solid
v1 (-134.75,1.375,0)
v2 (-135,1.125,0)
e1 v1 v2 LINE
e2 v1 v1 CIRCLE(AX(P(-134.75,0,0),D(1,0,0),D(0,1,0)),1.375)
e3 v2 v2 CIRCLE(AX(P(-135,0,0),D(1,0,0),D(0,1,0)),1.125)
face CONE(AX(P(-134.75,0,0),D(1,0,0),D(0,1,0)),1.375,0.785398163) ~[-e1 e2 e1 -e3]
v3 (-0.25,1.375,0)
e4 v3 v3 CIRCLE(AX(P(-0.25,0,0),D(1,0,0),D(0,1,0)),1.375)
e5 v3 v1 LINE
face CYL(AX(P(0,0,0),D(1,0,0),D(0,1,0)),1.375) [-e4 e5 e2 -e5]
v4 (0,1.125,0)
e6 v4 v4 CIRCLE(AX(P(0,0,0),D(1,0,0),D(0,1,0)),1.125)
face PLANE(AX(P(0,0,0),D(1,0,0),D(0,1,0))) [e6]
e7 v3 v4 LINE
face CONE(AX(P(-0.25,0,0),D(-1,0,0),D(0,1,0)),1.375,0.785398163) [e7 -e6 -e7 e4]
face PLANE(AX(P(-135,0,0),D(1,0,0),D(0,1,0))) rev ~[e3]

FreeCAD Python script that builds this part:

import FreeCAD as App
import Part
import Sketcher
from FreeCAD import Vector


def edges_at(feature, points):
    """Names of the edges that pass closest to the given points."""
    edges = feature.Shape.Edges
    near = lambda p: min(range(len(edges)), key=lambda i: edges[i].distToShape(Part.Vertex(*p))[0])
    return sorted({f"Edge{near(p) + 1}" for p in points})

doc = App.newDocument("Part")
params = doc.addObject("Spreadsheet::Sheet", "Params")
for row, (alias, value) in enumerate([
    ("sketch1_diameter", "2.75 mm"),
    ("pad1_length", "135 mm"),
    ("chamfer_size", "0.25 mm"),
], start=1):
    params.set(f"A{row}", alias)
    params.set(f"B{row}", "=" + value)
    params.setAlias(f"B{row}", alias)

body = doc.addObject("PartDesign::Body", "Body")

sketch1 = body.newObject("Sketcher::SketchObject", "Sketch")
sketch1.AttachmentSupport = (doc.getObject("YZ_Plane"), [""])
sketch1.MapMode = "FlatFace"
sketch1.addGeometry(Part.Circle(Vector(0, 0, 0), Vector(0, 0, 1), 1.375), False)
sketch1.addConstraint([
    Sketcher.Constraint("Coincident", 0, 3, -1, 1),
    Sketcher.Constraint("Diameter", 0, 2.75),
])
sketch1.setExpression("Constraints[1]", "Params.sketch1_diameter")
pad1 = body.newObject("PartDesign::Pad", "Pad")
pad1.Profile = sketch1
pad1.setExpression("Length", "Params.pad1_length")
pad1.Reversed = True
doc.recompute()

chamfer = body.newObject("PartDesign::Chamfer", "Chamfer")
chamfer.Base = (pad1, edges_at(pad1, [(-135, -1.375, 0), (0, -1.375, 0)]))
chamfer.setExpression("Size", "Params.chamfer_size")

doc.recompute()
